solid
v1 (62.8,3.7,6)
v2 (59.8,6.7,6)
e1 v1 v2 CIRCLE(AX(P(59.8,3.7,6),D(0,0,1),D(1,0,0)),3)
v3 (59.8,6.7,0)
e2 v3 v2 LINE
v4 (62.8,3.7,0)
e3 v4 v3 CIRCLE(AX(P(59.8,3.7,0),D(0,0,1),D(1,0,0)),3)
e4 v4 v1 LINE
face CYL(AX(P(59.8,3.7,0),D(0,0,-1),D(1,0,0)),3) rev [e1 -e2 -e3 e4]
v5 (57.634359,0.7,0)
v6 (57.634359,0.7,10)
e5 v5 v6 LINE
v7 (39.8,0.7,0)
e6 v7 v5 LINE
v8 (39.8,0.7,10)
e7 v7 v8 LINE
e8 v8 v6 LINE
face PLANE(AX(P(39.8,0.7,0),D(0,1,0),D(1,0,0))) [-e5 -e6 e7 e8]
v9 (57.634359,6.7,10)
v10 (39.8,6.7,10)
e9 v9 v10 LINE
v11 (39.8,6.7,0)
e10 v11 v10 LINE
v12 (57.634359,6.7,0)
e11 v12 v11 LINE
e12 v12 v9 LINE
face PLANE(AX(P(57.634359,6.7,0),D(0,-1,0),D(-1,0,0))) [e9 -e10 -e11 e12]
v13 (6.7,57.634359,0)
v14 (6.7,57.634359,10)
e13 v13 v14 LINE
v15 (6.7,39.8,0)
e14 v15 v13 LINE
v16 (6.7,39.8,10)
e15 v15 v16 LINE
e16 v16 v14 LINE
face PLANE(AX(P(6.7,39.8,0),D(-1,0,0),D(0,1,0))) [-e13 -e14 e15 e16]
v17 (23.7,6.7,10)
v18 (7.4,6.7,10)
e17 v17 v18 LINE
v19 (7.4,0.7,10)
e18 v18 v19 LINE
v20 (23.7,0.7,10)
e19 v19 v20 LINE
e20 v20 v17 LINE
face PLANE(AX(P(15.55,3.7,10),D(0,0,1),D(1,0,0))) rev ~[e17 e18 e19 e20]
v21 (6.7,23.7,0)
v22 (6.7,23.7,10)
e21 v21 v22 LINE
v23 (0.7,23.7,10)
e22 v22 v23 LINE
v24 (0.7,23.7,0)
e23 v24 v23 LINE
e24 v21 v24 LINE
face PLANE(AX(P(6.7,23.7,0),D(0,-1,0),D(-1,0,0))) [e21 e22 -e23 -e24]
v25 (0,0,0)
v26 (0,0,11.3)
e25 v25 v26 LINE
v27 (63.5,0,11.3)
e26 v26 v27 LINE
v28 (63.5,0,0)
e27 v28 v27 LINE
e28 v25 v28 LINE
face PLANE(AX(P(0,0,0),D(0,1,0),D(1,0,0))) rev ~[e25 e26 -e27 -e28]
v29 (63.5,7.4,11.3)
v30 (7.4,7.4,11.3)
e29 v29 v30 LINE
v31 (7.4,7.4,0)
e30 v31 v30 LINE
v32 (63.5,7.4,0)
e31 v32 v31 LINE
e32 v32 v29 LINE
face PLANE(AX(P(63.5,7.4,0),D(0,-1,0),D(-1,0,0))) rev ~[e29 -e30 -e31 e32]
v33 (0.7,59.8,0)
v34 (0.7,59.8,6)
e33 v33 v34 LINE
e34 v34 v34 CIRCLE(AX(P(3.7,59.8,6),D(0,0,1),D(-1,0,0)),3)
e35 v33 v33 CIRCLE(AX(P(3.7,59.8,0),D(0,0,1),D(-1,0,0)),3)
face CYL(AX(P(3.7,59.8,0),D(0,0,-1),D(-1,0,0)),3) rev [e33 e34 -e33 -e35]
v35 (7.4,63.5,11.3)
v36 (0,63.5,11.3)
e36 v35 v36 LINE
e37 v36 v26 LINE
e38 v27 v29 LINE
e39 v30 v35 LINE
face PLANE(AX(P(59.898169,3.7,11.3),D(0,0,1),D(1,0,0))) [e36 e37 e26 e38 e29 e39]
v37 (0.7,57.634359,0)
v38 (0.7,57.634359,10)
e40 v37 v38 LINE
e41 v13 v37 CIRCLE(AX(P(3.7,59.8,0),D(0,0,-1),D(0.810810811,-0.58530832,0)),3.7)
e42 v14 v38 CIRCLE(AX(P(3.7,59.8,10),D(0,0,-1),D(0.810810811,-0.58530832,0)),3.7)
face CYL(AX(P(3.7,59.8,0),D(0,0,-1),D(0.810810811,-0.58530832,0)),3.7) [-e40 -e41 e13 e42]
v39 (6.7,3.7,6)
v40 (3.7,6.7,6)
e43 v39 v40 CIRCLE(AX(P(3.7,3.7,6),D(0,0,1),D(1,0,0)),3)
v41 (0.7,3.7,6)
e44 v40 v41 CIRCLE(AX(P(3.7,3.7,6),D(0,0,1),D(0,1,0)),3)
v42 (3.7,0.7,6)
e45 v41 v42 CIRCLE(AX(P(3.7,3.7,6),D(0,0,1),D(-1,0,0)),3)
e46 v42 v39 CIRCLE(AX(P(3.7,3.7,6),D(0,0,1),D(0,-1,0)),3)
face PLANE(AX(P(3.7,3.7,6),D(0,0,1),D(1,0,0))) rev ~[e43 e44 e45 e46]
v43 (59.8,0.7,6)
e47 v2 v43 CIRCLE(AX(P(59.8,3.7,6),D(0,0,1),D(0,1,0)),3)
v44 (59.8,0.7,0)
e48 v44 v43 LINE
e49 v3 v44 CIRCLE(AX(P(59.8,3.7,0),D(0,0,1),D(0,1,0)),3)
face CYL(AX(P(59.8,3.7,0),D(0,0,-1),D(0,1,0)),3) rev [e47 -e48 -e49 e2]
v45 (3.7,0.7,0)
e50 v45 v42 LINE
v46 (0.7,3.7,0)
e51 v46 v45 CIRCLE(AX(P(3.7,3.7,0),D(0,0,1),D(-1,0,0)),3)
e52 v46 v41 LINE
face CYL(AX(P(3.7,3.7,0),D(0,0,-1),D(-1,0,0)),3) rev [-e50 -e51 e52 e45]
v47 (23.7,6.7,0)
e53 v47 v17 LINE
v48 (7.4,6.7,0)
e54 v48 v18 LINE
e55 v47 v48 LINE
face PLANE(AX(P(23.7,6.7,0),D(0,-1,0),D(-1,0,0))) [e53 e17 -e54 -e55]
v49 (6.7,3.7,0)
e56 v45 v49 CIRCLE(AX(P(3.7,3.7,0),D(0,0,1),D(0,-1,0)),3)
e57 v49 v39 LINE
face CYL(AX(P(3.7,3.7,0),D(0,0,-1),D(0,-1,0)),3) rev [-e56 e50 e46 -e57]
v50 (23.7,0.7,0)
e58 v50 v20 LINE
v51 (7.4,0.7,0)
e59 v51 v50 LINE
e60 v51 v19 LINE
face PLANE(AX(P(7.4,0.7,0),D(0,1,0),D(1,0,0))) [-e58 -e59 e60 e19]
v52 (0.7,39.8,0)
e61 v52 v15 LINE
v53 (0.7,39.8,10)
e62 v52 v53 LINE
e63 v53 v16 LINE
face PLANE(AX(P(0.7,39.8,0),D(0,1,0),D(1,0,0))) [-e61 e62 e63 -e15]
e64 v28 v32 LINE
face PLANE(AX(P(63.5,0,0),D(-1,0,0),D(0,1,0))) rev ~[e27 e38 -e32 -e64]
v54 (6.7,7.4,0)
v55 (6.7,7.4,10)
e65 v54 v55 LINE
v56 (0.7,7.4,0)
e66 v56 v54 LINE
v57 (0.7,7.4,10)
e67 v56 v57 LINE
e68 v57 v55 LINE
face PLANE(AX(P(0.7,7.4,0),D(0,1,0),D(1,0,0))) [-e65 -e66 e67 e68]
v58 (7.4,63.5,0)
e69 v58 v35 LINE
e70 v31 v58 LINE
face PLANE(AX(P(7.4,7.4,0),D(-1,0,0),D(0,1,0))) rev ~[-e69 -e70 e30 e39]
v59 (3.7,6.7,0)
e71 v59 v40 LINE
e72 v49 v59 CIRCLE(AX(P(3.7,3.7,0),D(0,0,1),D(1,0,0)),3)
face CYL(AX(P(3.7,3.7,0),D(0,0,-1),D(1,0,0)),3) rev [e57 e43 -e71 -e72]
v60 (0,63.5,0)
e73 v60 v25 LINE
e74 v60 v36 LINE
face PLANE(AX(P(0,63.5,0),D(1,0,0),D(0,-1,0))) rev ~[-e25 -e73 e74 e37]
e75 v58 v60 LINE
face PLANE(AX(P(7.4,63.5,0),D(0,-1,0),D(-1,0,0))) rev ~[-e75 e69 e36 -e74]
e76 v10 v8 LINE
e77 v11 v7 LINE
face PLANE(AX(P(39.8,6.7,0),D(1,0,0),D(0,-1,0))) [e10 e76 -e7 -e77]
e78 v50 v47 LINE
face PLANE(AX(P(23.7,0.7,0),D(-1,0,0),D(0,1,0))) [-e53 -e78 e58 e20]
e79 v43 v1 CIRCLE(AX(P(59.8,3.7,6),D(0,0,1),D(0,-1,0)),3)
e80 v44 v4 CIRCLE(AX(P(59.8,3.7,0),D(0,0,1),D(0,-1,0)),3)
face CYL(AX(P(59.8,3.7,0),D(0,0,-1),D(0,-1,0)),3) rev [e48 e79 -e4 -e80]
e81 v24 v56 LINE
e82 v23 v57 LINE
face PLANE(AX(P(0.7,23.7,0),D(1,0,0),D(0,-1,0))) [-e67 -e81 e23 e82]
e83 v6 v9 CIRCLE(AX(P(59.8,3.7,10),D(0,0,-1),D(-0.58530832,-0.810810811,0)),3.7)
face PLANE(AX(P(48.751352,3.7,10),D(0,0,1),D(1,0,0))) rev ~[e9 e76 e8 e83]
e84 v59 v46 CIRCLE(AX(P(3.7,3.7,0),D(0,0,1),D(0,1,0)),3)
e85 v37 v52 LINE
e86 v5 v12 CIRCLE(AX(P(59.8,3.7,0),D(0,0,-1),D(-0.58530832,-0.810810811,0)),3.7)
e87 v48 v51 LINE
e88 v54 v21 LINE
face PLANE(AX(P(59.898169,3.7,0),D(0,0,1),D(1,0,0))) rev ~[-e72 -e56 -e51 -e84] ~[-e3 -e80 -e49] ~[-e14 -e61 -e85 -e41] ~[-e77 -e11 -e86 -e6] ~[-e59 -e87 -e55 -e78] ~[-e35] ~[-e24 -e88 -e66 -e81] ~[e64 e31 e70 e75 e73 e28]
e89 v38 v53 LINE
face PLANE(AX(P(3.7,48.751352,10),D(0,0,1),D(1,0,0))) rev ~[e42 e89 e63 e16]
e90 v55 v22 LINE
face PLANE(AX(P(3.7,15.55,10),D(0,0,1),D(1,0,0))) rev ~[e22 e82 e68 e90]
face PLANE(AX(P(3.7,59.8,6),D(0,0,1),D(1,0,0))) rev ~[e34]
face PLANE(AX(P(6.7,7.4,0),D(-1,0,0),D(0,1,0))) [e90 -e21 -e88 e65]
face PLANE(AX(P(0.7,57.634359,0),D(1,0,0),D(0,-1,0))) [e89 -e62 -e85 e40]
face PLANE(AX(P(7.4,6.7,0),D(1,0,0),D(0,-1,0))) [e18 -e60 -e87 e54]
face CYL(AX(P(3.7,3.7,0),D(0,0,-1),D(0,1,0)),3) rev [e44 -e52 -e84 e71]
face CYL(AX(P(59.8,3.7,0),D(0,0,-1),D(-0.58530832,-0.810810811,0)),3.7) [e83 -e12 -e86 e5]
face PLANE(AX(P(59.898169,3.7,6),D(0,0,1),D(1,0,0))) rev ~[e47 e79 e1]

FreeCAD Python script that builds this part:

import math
import FreeCAD as App
import Part
import Sketcher

V = App.Vector
Q = App.Units.Quantity


def add_polygon(sketch, points):
    """Adds a closed chain of lines whose ends are joined by coincident constraints."""
    first, n = sketch.GeometryCount, len(points)
    for a, b in zip(points, points[1:] + points[:1]):
        sketch.addGeometry(Part.LineSegment(App.Vector(*a, 0), App.Vector(*b, 0)), False)
    for i in range(n):
        sketch.addConstraint(Sketcher.Constraint("Coincident", first + i, 2, first + (i + 1) % n, 1))

doc = App.newDocument("Part")
params = doc.addObject("Spreadsheet::Sheet", "Params")
for row, (alias, value) in enumerate([
    ("sketch1_width", "56.1 mm"),
    ("sketch1_width2", "7.4 mm"),
    ("pad1_length", "11.3 mm"),
    ("sketch2_diameter", "6 mm"),
    ("pocket1_length", "6 mm"),
    ("sketch3_radius", "3.7 mm"),
    ("sketch3_width", "6 mm"),
    ("sketch3_width2", "16.3 mm"),
    ("pocket2_length", "10 mm"),
], start=1):
    params.set(f"A{row}", alias)
    params.set(f"B{row}", "=" + value)
    params.setAlias(f"B{row}", alias)

body = doc.addObject("PartDesign::Body", "Body")

# Sketch on XY plane
sketch1 = body.newObject("Sketcher::SketchObject", "Sketch")
sketch1.AttachmentSupport = (doc.getObject("XY_Plane"), [""])
sketch1.MapMode = "FlatFace"
add_polygon(sketch1, [(63.5, 7.4), (7.4, 7.4), (7.4, 63.5), (0, 63.5), (0, 0), (63.5, 0)])  # lines 0-5
sketch1.addConstraint([
    Sketcher.Constraint("Horizontal", 0),
    Sketcher.Constraint("Vertical", 1),
    Sketcher.Constraint("Horizontal", 2),
    Sketcher.Constraint("Vertical", 3),
    Sketcher.Constraint("Horizontal", 4),
    Sketcher.Constraint("Vertical", 5),
    Sketcher.Constraint("Coincident", 3, 2, -1, 1),
    Sketcher.Constraint("Equal", 0, 1),
    Sketcher.Constraint("Equal", 4, 3),
    Sketcher.Constraint("DistanceX", 0, 2, 0, 1, Q("56.1 mm")),
    Sketcher.Constraint("DistanceX", 2, 2, 2, 1, Q("7.4 mm")),
])
sketch1.setExpression("Constraints[15]", "Params.sketch1_width")
sketch1.setExpression("Constraints[16]", "Params.sketch1_width2")
pad1 = body.newObject("PartDesign::Pad", "Pad")
pad1.Profile = sketch1
pad1.setExpression("Length", "Params.pad1_length")

# Sketch on XY plane
sketch2 = body.newObject("Sketcher::SketchObject", "Sketch001")
sketch2.AttachmentSupport = (doc.getObject("XY_Plane"), [""])
sketch2.MapMode = "FlatFace"
sketch2.addGeometry([
    Part.Circle(V(3.7, 59.8, 0), V(0, 0, 1), 3),  # 0
    Part.ArcOfCircle(Part.Circle(V(3.7, 3.7, 0), V(0, 0, 1), 3), math.radians(180), math.radians(270)),  # 1
    Part.ArcOfCircle(Part.Circle(V(3.7, 3.7, 0), V(0, 0, 1), 3), math.radians(-90), math.radians(0)),  # 2
    Part.ArcOfCircle(Part.Circle(V(3.7, 3.7, 0), V(0, 0, 1), 3), math.radians(0), math.radians(90)),  # 3
    Part.ArcOfCircle(Part.Circle(V(3.7, 3.7, 0), V(0, 0, 1), 3), math.radians(90), math.radians(180)),  # 4
    Part.ArcOfCircle(Part.Circle(V(59.8, 3.7, 0), V(0, 0, 1), 3), math.radians(90), math.radians(270)),  # 5
    Part.ArcOfCircle(Part.Circle(V(59.8, 3.7, 0), V(0, 0, 1), 3), math.radians(-90), math.radians(0)),  # 6
    Part.ArcOfCircle(Part.Circle(V(59.8, 3.7, 0), V(0, 0, 1), 3), math.radians(0), math.radians(90)),  # 7
], False)
sketch2.addConstraint([
    Sketcher.Constraint("Tangent", 1, 2, 2, 1),
    Sketcher.Constraint("Tangent", 2, 2, 3, 1),
    Sketcher.Constraint("Tangent", 3, 2, 4, 1),
    Sketcher.Constraint("Tangent", 4, 2, 1, 1),
    Sketcher.Constraint("Tangent", 5, 2, 6, 1),
    Sketcher.Constraint("Tangent", 6, 2, 7, 1),
    Sketcher.Constraint("Tangent", 7, 2, 5, 1),
    Sketcher.Constraint("Equal", 0, 1),
    Sketcher.Constraint("Equal", 1, 2),
    Sketcher.Constraint("Equal", 4, 5),
    Sketcher.Constraint("Horizontal", 4, 3, 5, 3),
    Sketcher.Constraint("Horizontal", 7, 3, 2, 2),
    Sketcher.Constraint("Horizontal", 2, 2, 4, 2),
    Sketcher.Constraint("Horizontal", 4, 2, 6, 2),
    Sketcher.Constraint("Vertical", 0, 3, 1, 3),
    Sketcher.Constraint("Vertical", 4, 3, 1, 2),
    Sketcher.Constraint("Vertical", 1, 2, 3, 2),
    Sketcher.Constraint("Vertical", 7, 3, 5, 2),
    Sketcher.Constraint("Vertical", 5, 2, 7, 2),
    Sketcher.Constraint("Diameter", 0, Q("6 mm")),
    Sketcher.Constraint("DistanceX", -1, 1, 0, 3, Q("3.7 mm")),
    Sketcher.Constraint("DistanceY", -1, 1, 0, 3, Q("59.8 mm")),
    Sketcher.Constraint("DistanceY", -1, 1, 1, 3, Q("3.7 mm")),
    Sketcher.Constraint("DistanceX", -1, 1, 5, 3, Q("59.8 mm")),
])
sketch2.setExpression("Constraints[19]", "Params.sketch2_diameter")
pocket1 = body.newObject("PartDesign::Pocket", "Pocket")
pocket1.Profile = sketch2
pocket1.setExpression("Length", "Params.pocket1_length")
pocket1.Reversed = True

# Sketch on XY plane
sketch3 = body.newObject("Sketcher::SketchObject", "Sketch002")
sketch3.AttachmentSupport = (doc.getObject("XY_Plane"), [""])
sketch3.MapMode = "FlatFace"
sketch3.addGeometry(Part.ArcOfCircle(Part.Circle(V(3.7, 59.8, 0), V(0, 0, 1), 3.7), math.radians(-144.175226), math.radians(-35.824774)), False)  # 0
sketch3.addGeometry(Part.LineSegment(V(0.7, 57.634359, 0), V(0.7, 39.8, 0)), False)  # 1
sketch3.addGeometry(Part.LineSegment(V(0.7, 39.8, 0), V(6.7, 39.8, 0)), False)  # 2
sketch3.addGeometry(Part.LineSegment(V(6.7, 39.8, 0), V(6.7, 57.634359, 0)), False)  # 3
add_polygon(sketch3, [(0.7, 23.7), (0.7, 7.4), (6.7, 7.4), (6.7, 23.7)])  # lines 4-7
sketch3.addGeometry(Part.LineSegment(V(39.8, 0.7, 0), V(57.634359, 0.7, 0)), False)  # 8
sketch3.addGeometry(Part.ArcOfCircle(Part.Circle(V(59.8, 3.7, 0), V(0, 0, 1), 3.7), math.radians(125.824774), math.radians(234.175226)), False)  # 9
sketch3.addGeometry(Part.LineSegment(V(57.634359, 6.7, 0), V(39.8, 6.7, 0)), False)  # 10
sketch3.addGeometry(Part.LineSegment(V(39.8, 6.7, 0), V(39.8, 0.7, 0)), False)  # 11
add_polygon(sketch3, [(7.4, 0.7), (23.7, 0.7), (23.7, 6.7), (7.4, 6.7)])  # lines 12-15
sketch3.addConstraint([
    Sketcher.Constraint("Coincident", 0, 1, 1, 1),
    Sketcher.Constraint("Coincident", 1, 2, 2, 1),
    Sketcher.Constraint("Coincident", 2, 2, 3, 1),
    Sketcher.Constraint("Coincident", 3, 2, 0, 2),
    Sketcher.Constraint("Coincident", 8, 2, 9, 2),
    Sketcher.Constraint("Coincident", 9, 1, 10, 1),
    Sketcher.Constraint("Coincident", 10, 2, 11, 1),
    Sketcher.Constraint("Coincident", 11, 2, 8, 1),
    Sketcher.Constraint("Vertical", 1),
    Sketcher.Constraint("Horizontal", 2),
    Sketcher.Constraint("Vertical", 3),
    Sketcher.Constraint("Vertical", 4),
    Sketcher.Constraint("Horizontal", 5),
    Sketcher.Constraint("Vertical", 6),
    Sketcher.Constraint("Horizontal", 7),
    Sketcher.Constraint("Horizontal", 8),
    Sketcher.Constraint("Horizontal", 10),
    Sketcher.Constraint("Vertical", 11),
    Sketcher.Constraint("Horizontal", 12),
    Sketcher.Constraint("Vertical", 13),
    Sketcher.Constraint("Horizontal", 14),
    Sketcher.Constraint("Vertical", 15),
    Sketcher.Constraint("Equal", 0, 9),
    Sketcher.Constraint("Horizontal", 0, 1, 3, 2),
    Sketcher.Constraint("Horizontal", 11, 2, 12, 2),
    Sketcher.Constraint("Horizontal", 10, 2, 13, 2),
    Sketcher.Constraint("Vertical", 1, 2, 4, 2),
    Sketcher.Constraint("Vertical", 3, 2, 5, 2),
    Sketcher.Constraint("Vertical", 8, 2, 9, 1),
    Sketcher.Constraint("Equal", 10, 1),
    Sketcher.Constraint("Equal", 14, 4),
    Sketcher.Constraint("Equal", 7, 11),
    Sketcher.Constraint("Radius", 0, Q("3.7 mm")),
    Sketcher.Constraint("DistanceX", 2, 1, 2, 2, Q("6 mm")),
    Sketcher.Constraint("DistanceX", 12, 1, 12, 2, Q("16.3 mm")),
    Sketcher.Constraint("DistanceY", 1, 2, 0, 3, Q("20 mm")),
    Sketcher.Constraint("DistanceY", 8, 2, 6, 2, Q("23 mm")),
    Sketcher.Constraint("DistanceX", 5, 2, 12, 2, Q("17 mm")),
    Sketcher.Constraint("DistanceX", -1, 1, 0, 3, Q("3.7 mm")),
    Sketcher.Constraint("DistanceY", -1, 1, 0, 3, Q("59.8 mm")),
    Sketcher.Constraint("DistanceX", -1, 1, 9, 3, Q("59.8 mm")),
    Sketcher.Constraint("DistanceY", -1, 1, 9, 3, Q("3.7 mm")),
])
sketch3.setExpression("Constraints[40]", "Params.sketch3_radius")
sketch3.setExpression("Constraints[41]", "Params.sketch3_width")
sketch3.setExpression("Constraints[42]", "Params.sketch3_width2")
pocket2 = body.newObject("PartDesign::Pocket", "Pocket001")
pocket2.Profile = sketch3
pocket2.setExpression("Length", "Params.pocket2_length")
pocket2.Reversed = True

doc.recompute()
